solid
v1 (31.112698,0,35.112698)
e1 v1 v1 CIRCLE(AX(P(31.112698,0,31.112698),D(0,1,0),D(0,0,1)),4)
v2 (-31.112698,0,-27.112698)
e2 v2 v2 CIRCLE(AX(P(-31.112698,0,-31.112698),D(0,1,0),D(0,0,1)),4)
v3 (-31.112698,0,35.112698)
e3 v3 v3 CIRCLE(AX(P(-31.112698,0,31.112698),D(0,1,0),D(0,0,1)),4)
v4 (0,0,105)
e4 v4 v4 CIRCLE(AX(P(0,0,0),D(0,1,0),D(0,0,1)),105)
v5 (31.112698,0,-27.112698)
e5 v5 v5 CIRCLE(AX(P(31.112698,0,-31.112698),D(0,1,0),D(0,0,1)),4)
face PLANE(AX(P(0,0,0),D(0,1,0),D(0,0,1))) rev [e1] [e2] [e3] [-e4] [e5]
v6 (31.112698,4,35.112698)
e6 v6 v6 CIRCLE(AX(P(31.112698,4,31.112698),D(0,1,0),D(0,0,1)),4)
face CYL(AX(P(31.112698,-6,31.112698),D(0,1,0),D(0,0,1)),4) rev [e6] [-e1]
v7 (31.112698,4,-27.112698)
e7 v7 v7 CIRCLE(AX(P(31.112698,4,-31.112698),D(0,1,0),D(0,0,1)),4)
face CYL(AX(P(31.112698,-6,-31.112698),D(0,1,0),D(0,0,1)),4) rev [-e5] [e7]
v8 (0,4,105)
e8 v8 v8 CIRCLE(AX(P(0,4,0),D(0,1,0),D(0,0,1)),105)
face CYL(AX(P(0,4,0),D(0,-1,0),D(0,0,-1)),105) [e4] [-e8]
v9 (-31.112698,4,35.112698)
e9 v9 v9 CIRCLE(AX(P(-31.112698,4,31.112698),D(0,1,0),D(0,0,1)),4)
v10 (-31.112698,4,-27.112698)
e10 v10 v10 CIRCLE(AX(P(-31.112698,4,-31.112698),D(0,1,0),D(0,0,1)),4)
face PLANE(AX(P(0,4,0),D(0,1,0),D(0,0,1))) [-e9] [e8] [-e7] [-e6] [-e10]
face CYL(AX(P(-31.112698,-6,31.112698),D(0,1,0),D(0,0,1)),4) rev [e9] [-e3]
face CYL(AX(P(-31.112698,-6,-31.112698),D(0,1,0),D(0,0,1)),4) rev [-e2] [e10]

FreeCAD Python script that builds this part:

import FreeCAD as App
import Part
import Sketcher
from FreeCAD import Vector
Q = App.Units.Quantity

doc = App.newDocument("Part")
body = doc.addObject("PartDesign::Body", "Body")

sketch1 = doc.addObject("Sketcher::SketchObject", "Sketch")
body.addObject(sketch1)
sketch1.AttachmentSupport = (doc.XZ_Plane, [""])
sketch1.MapMode = "FlatFace"
sketch1.addGeometry(Part.Circle(Vector(0, 0, 0), Vector(0, 0, 1), 105), False)
sketch1.addConstraint(Sketcher.Constraint("Coincident", 0, 3, -1, 1))
sketch1.addConstraint(Sketcher.Constraint("Diameter", 0, Q("210 mm")))
pad1 = doc.addObject("PartDesign::Pad", "Pad")
body.addObject(pad1)
pad1.Profile = sketch1
pad1.Length = 4
pad1.Reversed = True

sketch2 = doc.addObject("Sketcher::SketchObject", "Sketch001")
body.addObject(sketch2)
sketch2.AttachmentSupport = (doc.XZ_Plane, [""])
sketch2.MapMode = "FlatFace"
sketch2.AttachmentOffset = App.Placement(Vector(0, 0, -4), App.Rotation())
sketch2.addGeometry(Part.Circle(Vector(31.1, 31.1, 0), Vector(0, 0, 1), 4), False)
sketch2.addGeometry(Part.Circle(Vector(31.1, -31.1, 0), Vector(0, 0, 1), 4), False)
sketch2.addGeometry(Part.Circle(Vector(-31.1, -31.1, 0), Vector(0, 0, 1), 4), False)
sketch2.addGeometry(Part.Circle(Vector(-31.1, 31.1, 0), Vector(0, 0, 1), 4), False)
sketch2.addConstraint(Sketcher.Constraint("Equal", 0, 1))
sketch2.addConstraint(Sketcher.Constraint("Equal", 1, 2))
sketch2.addConstraint(Sketcher.Constraint("Equal", 2, 3))
sketch2.addConstraint(Sketcher.Constraint("Symmetric", 0, 3, 2, 3, -1, 1))
sketch2.addConstraint(Sketcher.Constraint("Symmetric", 1, 3, 3, 3, -1, 1))
sketch2.addConstraint(Sketcher.Constraint("Symmetric", 1, 3, 2, 3, -2))
sketch2.addConstraint(Sketcher.Constraint("Diameter", 0, Q("8 mm")))
sketch2.addConstraint(Sketcher.Constraint("DistanceX", -1, 1, 0, 3, Q("31.112698 mm")))
sketch2.addConstraint(Sketcher.Constraint("DistanceY", -1, 1, 0, 3, Q("31.112698 mm")))
pocket1 = doc.addObject("PartDesign::Pocket", "Pocket")
body.addObject(pocket1)
pocket1.Profile = sketch2
pocket1.Length = 10
pocket1.Reversed = True

doc.recompute()
